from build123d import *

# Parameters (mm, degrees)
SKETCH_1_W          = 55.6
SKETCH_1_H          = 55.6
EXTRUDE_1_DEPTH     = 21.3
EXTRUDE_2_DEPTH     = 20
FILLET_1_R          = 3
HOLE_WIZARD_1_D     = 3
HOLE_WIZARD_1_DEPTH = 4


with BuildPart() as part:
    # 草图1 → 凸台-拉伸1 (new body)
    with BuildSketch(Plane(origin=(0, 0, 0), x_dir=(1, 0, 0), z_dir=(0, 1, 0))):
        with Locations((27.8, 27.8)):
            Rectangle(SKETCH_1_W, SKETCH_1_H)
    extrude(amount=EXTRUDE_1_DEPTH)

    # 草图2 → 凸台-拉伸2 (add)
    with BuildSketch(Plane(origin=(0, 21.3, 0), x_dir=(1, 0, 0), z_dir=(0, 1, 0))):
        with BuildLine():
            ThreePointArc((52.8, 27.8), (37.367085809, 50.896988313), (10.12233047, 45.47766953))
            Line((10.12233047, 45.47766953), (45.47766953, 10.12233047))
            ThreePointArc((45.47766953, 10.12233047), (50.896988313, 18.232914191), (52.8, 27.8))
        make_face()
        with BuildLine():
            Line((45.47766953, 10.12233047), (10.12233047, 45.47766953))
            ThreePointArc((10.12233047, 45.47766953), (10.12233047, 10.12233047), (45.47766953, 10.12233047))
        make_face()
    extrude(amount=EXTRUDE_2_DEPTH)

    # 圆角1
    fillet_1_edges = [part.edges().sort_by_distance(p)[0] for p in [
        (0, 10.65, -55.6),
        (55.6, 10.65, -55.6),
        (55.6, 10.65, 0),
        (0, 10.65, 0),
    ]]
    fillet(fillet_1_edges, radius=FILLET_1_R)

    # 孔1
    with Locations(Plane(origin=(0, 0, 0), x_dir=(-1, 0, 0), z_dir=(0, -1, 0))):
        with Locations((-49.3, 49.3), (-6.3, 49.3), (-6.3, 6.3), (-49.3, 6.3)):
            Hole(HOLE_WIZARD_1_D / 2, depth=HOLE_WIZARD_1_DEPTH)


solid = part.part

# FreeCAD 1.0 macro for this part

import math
import FreeCAD as App
import Part
import Sketcher
from FreeCAD import Vector
Q = App.Units.Quantity


def edges_at(feature, points):
    """Names of the edges that pass closest to the given points."""
    edges = feature.Shape.Edges
    near = lambda p: min(range(len(edges)), key=lambda i: edges[i].distToShape(Part.Vertex(*p))[0])
    return sorted({f"Edge{near(p) + 1}" for p in points})

doc = App.newDocument("Part")
body = doc.addObject("PartDesign::Body", "Body")

# Sketch on XZ plane
sketch1 = body.newObject("Sketcher::SketchObject", "Sketch")
sketch1.AttachmentSupport = (doc.getObject("XZ_Plane"), [""])
sketch1.MapMode = "FlatFace"
sketch1.addGeometry(Part.LineSegment(Vector(0, -56, 0), Vector(0, 0, 0)), False)
sketch1.addGeometry(Part.LineSegment(Vector(0, 0, 0), Vector(56, 0, 0)), False)
sketch1.addGeometry(Part.LineSegment(Vector(56, 0, 0), Vector(56, -56, 0)), False)
sketch1.addGeometry(Part.LineSegment(Vector(56, -56, 0), Vector(0, -56, 0)), False)
sketch1.addConstraint(Sketcher.Constraint("Coincident", 0, 2, 1, 1))
sketch1.addConstraint(Sketcher.Constraint("Coincident", 1, 2, 2, 1))
sketch1.addConstraint(Sketcher.Constraint("Coincident", 2, 2, 3, 1))
sketch1.addConstraint(Sketcher.Constraint("Coincident", 3, 2, 0, 1))
sketch1.addConstraint(Sketcher.Constraint("Vertical", 0))
sketch1.addConstraint(Sketcher.Constraint("Horizontal", 1))
sketch1.addConstraint(Sketcher.Constraint("Vertical", 2))
sketch1.addConstraint(Sketcher.Constraint("Horizontal", 3))
sketch1.addConstraint(Sketcher.Constraint("Coincident", 0, 2, -1, 1))
sketch1.addConstraint(Sketcher.Constraint("Equal", 3, 0))
sketch1.addConstraint(Sketcher.Constraint("DistanceX", 1, 1, 1, 2, Q("55.6 mm")))
pad1 = body.newObject("PartDesign::Pad", "Pad")
pad1.Profile = sketch1
pad1.Length = 21.3
pad1.Reversed = True

# Sketch on XZ plane
sketch2 = body.newObject("Sketcher::SketchObject", "Sketch001")
sketch2.AttachmentSupport = (doc.getObject("XZ_Plane"), [""])
sketch2.MapMode = "FlatFace"
sketch2.AttachmentOffset = App.Placement(Vector(0, 0, -21.3), App.Rotation())
sketch2.addGeometry(Part.ArcOfCircle(Part.Circle(Vector(28, -28, 0), Vector(0, 0, 1), 25), math.radians(-135), math.radians(0)), False)
sketch2.addGeometry(Part.ArcOfCircle(Part.Circle(Vector(28, -28, 0), Vector(0, 0, 1), 25), math.radians(45), math.radians(225)), False)
sketch2.addGeometry(Part.ArcOfCircle(Part.Circle(Vector(28, -28, 0), Vector(0, 0, 1), 25), math.radians(0), math.radians(45)), False)
sketch2.addConstraint(Sketcher.Constraint("Tangent", 0, 1, 1, 2))
sketch2.addConstraint(Sketcher.Constraint("Tangent", 1, 1, 2, 2))
sketch2.addConstraint(Sketcher.Constraint("Tangent", 2, 1, 0, 2))
sketch2.addConstraint(Sketcher.Constraint("Horizontal", 1, 3, 2, 1))
sketch2.addConstraint(Sketcher.Constraint("Radius", 0, Q("25 mm")))
sketch2.addConstraint(Sketcher.Constraint("DistanceX", -1, 1, 0, 3, Q("27.8 mm")))
sketch2.addConstraint(Sketcher.Constraint("DistanceY", 0, 3, -1, 1, Q("27.8 mm")))
sketch2.addConstraint(Sketcher.Constraint("DistanceX", -1, 1, 0, 1, Q("10.12233 mm")))
sketch2.addConstraint(Sketcher.Constraint("DistanceX", -1, 1, 1, 1, Q("45.47767 mm")))
pad2 = body.newObject("PartDesign::Pad", "Pad001")
pad2.Profile = sketch2
pad2.Length = 20
pad2.Reversed = True
doc.recompute()

fillet = body.newObject("PartDesign::Fillet", "Fillet")
fillet.Base = (pad2, edges_at(pad2, [
    (0, 10.65, -55.6),
    (55.6, 10.65, -55.6),
    (55.6, 10.65, 0),
    (0, 10.65, 0),
]))
fillet.Radius = 3

# Sketch on XZ plane
sketch3 = body.newObject("Sketcher::SketchObject", "Sketch002")
sketch3.AttachmentSupport = (doc.getObject("XZ_Plane"), [""])
sketch3.MapMode = "FlatFace"
sketch3.addGeometry(Part.Circle(Vector(49.3, -49.3, 0), Vector(0, 0, 1), 1.5), False)
sketch3.addGeometry(Part.Circle(Vector(6.3, -49.3, 0), Vector(0, 0, 1), 1.5), False)
sketch3.addGeometry(Part.Circle(Vector(6.3, -6.3, 0), Vector(0, 0, 1), 1.5), False)
sketch3.addGeometry(Part.Circle(Vector(49.3, -6.3, 0), Vector(0, 0, 1), 1.5), False)
sketch3.addConstraint(Sketcher.Constraint("Equal", 0, 1))
sketch3.addConstraint(Sketcher.Constraint("Equal", 1, 2))
sketch3.addConstraint(Sketcher.Constraint("Equal", 2, 3))
sketch3.addConstraint(Sketcher.Constraint("Horizontal", 0, 3, 1, 3))
sketch3.addConstraint(Sketcher.Constraint("Horizontal", 2, 3, 3, 3))
sketch3.addConstraint(Sketcher.Constraint("Vertical", 1, 3, 2, 3))
sketch3.addConstraint(Sketcher.Constraint("Vertical", 0, 3, 3, 3))
sketch3.addConstraint(Sketcher.Constraint("Diameter", 0, Q("3 mm")))
sketch3.addConstraint(Sketcher.Constraint("DistanceX", 1, 3, 0, 3, Q("43 mm")))
sketch3.addConstraint(Sketcher.Constraint("DistanceY", 1, 3, 2, 3, Q("43 mm")))
sketch3.addConstraint(Sketcher.Constraint("DistanceX", -1, 1, 0, 3, Q("49.3 mm")))
sketch3.addConstraint(Sketcher.Constraint("DistanceY", 0, 3, -1, 1, Q("49.3 mm")))
doc.recompute()
hole = body.newObject("PartDesign::Hole", "Hole")
hole.Profile = sketch3
hole.ThreadType = "None"
hole.Diameter = 3
hole.DepthType = "Dimension"
hole.Depth = 4
hole.DrillPoint = "Flat"

doc.recompute()
